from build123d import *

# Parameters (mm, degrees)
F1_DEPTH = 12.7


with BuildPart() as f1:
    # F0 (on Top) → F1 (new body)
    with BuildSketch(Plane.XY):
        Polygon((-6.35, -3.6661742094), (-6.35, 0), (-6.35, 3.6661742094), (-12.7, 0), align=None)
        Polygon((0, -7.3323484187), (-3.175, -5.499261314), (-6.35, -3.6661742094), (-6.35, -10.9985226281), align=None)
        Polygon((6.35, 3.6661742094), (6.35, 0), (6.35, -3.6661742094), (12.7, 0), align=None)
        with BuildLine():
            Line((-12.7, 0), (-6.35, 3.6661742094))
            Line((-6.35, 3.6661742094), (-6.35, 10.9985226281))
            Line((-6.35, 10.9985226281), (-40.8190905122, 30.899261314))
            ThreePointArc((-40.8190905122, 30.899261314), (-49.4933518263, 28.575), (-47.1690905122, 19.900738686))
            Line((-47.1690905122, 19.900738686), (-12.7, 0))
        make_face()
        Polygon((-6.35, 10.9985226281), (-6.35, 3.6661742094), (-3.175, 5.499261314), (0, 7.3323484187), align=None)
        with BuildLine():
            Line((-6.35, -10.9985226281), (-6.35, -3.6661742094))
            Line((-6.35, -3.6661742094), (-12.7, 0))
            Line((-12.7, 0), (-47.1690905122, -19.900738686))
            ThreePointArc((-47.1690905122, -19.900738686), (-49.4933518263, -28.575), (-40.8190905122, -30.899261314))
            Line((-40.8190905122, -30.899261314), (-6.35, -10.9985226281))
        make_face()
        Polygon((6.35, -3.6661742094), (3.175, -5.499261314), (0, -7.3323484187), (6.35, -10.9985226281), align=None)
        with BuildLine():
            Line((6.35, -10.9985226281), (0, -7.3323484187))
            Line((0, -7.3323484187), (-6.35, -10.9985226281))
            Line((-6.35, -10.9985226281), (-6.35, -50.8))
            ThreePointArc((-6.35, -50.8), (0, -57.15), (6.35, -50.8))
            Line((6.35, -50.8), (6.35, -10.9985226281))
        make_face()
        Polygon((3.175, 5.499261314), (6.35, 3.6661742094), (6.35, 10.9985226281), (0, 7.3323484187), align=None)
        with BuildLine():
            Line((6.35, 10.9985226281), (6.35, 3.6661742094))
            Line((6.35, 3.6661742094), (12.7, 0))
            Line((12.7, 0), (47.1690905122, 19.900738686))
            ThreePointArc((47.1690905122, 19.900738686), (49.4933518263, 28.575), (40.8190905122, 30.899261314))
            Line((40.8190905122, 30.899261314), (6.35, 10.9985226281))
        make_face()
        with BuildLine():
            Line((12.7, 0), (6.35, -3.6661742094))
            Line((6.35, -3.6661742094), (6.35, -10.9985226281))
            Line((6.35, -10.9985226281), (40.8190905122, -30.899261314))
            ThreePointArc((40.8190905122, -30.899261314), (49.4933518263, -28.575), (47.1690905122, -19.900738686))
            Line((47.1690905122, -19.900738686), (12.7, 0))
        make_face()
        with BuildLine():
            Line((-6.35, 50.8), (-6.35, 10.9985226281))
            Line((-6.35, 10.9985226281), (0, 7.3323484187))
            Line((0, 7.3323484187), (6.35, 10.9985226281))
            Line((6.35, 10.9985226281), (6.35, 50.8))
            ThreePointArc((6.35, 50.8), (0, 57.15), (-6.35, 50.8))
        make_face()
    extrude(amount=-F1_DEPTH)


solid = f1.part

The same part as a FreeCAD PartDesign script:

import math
import FreeCAD as App
import Part
import Sketcher

V = App.Vector
Q = App.Units.Quantity


def add_polygon(sketch, points):
    """Adds a closed chain of lines whose ends are joined by coincident constraints."""
    first, n = sketch.GeometryCount, len(points)
    for a, b in zip(points, points[1:] + points[:1]):
        sketch.addGeometry(Part.LineSegment(App.Vector(*a, 0), App.Vector(*b, 0)), False)
    for i in range(n):
        sketch.addConstraint(Sketcher.Constraint("Coincident", first + i, 2, first + (i + 1) % n, 1))

doc = App.newDocument("Part")
params = doc.addObject("Spreadsheet::Sheet", "Params")
for row, (alias, value) in enumerate([
    ("sketch1_radius", "0.25 in"),
    ("pad1_length", "0.5 in"),
], start=1):
    params.set(f"A{row}", alias)
    params.set(f"B{row}", "=" + value)
    params.setAlias(f"B{row}", alias)

body = doc.addObject("PartDesign::Body", "Body")

# Sketch on XY plane
sketch1 = doc.addObject("Sketcher::SketchObject", "Sketch")
body.addObject(sketch1)
sketch1.AttachmentSupport = (doc.XY_Plane, [""])
sketch1.MapMode = "FlatFace"
sketch1.addGeometry(Part.LineSegment(V(40.8, 30.9, 0), V(6.3, 11, 0)), False)  # 0
sketch1.addGeometry(Part.LineSegment(V(6.3, 11, 0), V(6.3, 50.8, 0)), False)  # 1
sketch1.addGeometry(Part.ArcOfCircle(Part.Circle(V(0, 50.8, 0), V(0, 0, 1), 6.3), math.radians(0), math.radians(180)), False)  # 2
sketch1.addGeometry(Part.LineSegment(V(-6.3, 50.8, 0), V(-6.3, 11, 0)), False)  # 3
sketch1.addGeometry(Part.LineSegment(V(-6.3, 11, 0), V(-40.8, 30.9, 0)), False)  # 4
sketch1.addGeometry(Part.ArcOfCircle(Part.Circle(V(-44, 25.4, 0), V(0, 0, 1), 6.3), math.radians(60), math.radians(240)), False)  # 5
sketch1.addGeometry(Part.LineSegment(V(-47.2, 19.9, 0), V(-12.7, 0, 0)), False)  # 6
sketch1.addGeometry(Part.LineSegment(V(-12.7, 0, 0), V(-47.2, -19.9, 0)), False)  # 7
sketch1.addGeometry(Part.ArcOfCircle(Part.Circle(V(-44, -25.4, 0), V(0, 0, 1), 6.3), math.radians(120), math.radians(300)), False)  # 8
sketch1.addGeometry(Part.LineSegment(V(-40.8, -30.9, 0), V(-6.3, -11, 0)), False)  # 9
sketch1.addGeometry(Part.LineSegment(V(-6.3, -11, 0), V(-6.3, -50.8, 0)), False)  # 10
sketch1.addGeometry(Part.ArcOfCircle(Part.Circle(V(0, -50.8, 0), V(0, 0, 1), 6.3), math.radians(180), math.radians(360)), False)  # 11
sketch1.addGeometry(Part.LineSegment(V(6.3, -50.8, 0), V(6.3, -11, 0)), False)  # 12
sketch1.addGeometry(Part.LineSegment(V(6.3, -11, 0), V(40.8, -30.9, 0)), False)  # 13
sketch1.addGeometry(Part.ArcOfCircle(Part.Circle(V(44, -25.4, 0), V(0, 0, 1), 6.3), math.radians(-120), math.radians(60)), False)  # 14
sketch1.addGeometry(Part.LineSegment(V(47.2, -19.9, 0), V(12.7, 0, 0)), False)  # 15
sketch1.addGeometry(Part.LineSegment(V(12.7, 0, 0), V(47.2, 19.9, 0)), False)  # 16
sketch1.addGeometry(Part.ArcOfCircle(Part.Circle(V(44, 25.4, 0), V(0, 0, 1), 6.3), math.radians(-60), math.radians(120)), False)  # 17
add_polygon(sketch1, [(-3.2, 5.5), (0, 7.3), (3.2, 5.5), (6.3, 3.7), (6.3, -3.7), (3.2, -5.5), (0, -7.3), (-3.2, -5.5), (-6.3, -3.7), (-6.3, 3.7)])  # lines 18-27
sketch1.addConstraint([
    Sketcher.Constraint("Coincident", 0, 2, 1, 1),
    Sketcher.Constraint("Tangent", 1, 2, 2, 1),
    Sketcher.Constraint("Tangent", 2, 2, 3, 1),
    Sketcher.Constraint("Coincident", 3, 2, 4, 1),
    Sketcher.Constraint("Tangent", 4, 2, 5, 1),
    Sketcher.Constraint("Tangent", 5, 2, 6, 1),
    Sketcher.Constraint("Coincident", 6, 2, 7, 1),
    Sketcher.Constraint("Tangent", 7, 2, 8, 1),
    Sketcher.Constraint("Tangent", 8, 2, 9, 1),
    Sketcher.Constraint("Coincident", 9, 2, 10, 1),
    Sketcher.Constraint("Tangent", 10, 2, 11, 1),
    Sketcher.Constraint("Tangent", 11, 2, 12, 1),
    Sketcher.Constraint("Coincident", 12, 2, 13, 1),
    Sketcher.Constraint("Tangent", 13, 2, 14, 1),
    Sketcher.Constraint("Tangent", 14, 2, 15, 1),
    Sketcher.Constraint("Coincident", 15, 2, 16, 1),
    Sketcher.Constraint("Tangent", 16, 2, 17, 1),
    Sketcher.Constraint("Tangent", 17, 2, 0, 1),
    Sketcher.Constraint("Vertical", 1),
    Sketcher.Constraint("Vertical", 3),
    Sketcher.Constraint("Vertical", 10),
    Sketcher.Constraint("Vertical", 12),
    Sketcher.Constraint("Vertical", 21),
    Sketcher.Constraint("Vertical", 26),
    Sketcher.Constraint("Equal", 2, 5),
    Sketcher.Constraint("Equal", 5, 8),
    Sketcher.Constraint("Equal", 8, 11),
    Sketcher.Constraint("Equal", 11, 14),
    Sketcher.Constraint("Equal", 14, 17),
    Sketcher.Constraint("Symmetric", 2, 3, 11, 3, -1, 1),
    Sketcher.Constraint("Symmetric", 5, 3, 14, 3, -1, 1),
    Sketcher.Constraint("Symmetric", 8, 3, 17, 3, -1, 1),
    Sketcher.Constraint("Symmetric", 6, 2, 15, 2, -1, 1),
    Sketcher.Constraint("Symmetric", 18, 2, 23, 2, -1, 1),
    Sketcher.Constraint("Symmetric", 19, 2, 24, 2, -1, 1),
    Sketcher.Constraint("Symmetric", 20, 2, 25, 2, -1, 1),
    Sketcher.Constraint("Symmetric", 22, 2, 27, 2, -1, 1),
    Sketcher.Constraint("Symmetric", 8, 3, 14, 3, -2),
    Sketcher.Constraint("Symmetric", 0, 2, 3, 2, -2),
    Sketcher.Constraint("Symmetric", 22, 2, 24, 2, -2),
    Sketcher.Constraint("PointOnObject", 6, 2, -1),
    Sketcher.Constraint("PointOnObject", 18, 2, -2),
    Sketcher.Constraint("Parallel", 4, 6),
    Sketcher.Constraint("Parallel", 7, 9),
    Sketcher.Constraint("Parallel", 6, 13),
    Sketcher.Constraint("Parallel", 16, 18),
    Sketcher.Constraint("Parallel", 19, 20),
    Sketcher.Constraint("Parallel", 18, 22),
    Sketcher.Constraint("Parallel", 23, 27),
    Sketcher.Constraint("Vertical", 12, 2, 20, 2),
    Sketcher.Constraint("Equal", 4, 6),
    Sketcher.Constraint("Equal", 19, 20),
    Sketcher.Constraint("Radius", 2, Q("0.25 in")),
    Sketcher.Constraint("DistanceY", -1, 1, 2, 3, Q("2 in")),
    Sketcher.Constraint("DistanceY", -1, 1, 5, 3, Q("1 in")),
    Sketcher.Constraint("Angle", 0, Q("-150 deg")),
    Sketcher.Constraint("DistanceY", 21, 2, 21, 1, 7.332348),
])
sketch1.setExpression("Constraints[62]", "Params.sketch1_radius")
pad1 = doc.addObject("PartDesign::Pad", "Pad")
body.addObject(pad1)
pad1.Profile = sketch1
pad1.setExpression("Length", "Params.pad1_length")
pad1.Reversed = True

doc.recompute()
